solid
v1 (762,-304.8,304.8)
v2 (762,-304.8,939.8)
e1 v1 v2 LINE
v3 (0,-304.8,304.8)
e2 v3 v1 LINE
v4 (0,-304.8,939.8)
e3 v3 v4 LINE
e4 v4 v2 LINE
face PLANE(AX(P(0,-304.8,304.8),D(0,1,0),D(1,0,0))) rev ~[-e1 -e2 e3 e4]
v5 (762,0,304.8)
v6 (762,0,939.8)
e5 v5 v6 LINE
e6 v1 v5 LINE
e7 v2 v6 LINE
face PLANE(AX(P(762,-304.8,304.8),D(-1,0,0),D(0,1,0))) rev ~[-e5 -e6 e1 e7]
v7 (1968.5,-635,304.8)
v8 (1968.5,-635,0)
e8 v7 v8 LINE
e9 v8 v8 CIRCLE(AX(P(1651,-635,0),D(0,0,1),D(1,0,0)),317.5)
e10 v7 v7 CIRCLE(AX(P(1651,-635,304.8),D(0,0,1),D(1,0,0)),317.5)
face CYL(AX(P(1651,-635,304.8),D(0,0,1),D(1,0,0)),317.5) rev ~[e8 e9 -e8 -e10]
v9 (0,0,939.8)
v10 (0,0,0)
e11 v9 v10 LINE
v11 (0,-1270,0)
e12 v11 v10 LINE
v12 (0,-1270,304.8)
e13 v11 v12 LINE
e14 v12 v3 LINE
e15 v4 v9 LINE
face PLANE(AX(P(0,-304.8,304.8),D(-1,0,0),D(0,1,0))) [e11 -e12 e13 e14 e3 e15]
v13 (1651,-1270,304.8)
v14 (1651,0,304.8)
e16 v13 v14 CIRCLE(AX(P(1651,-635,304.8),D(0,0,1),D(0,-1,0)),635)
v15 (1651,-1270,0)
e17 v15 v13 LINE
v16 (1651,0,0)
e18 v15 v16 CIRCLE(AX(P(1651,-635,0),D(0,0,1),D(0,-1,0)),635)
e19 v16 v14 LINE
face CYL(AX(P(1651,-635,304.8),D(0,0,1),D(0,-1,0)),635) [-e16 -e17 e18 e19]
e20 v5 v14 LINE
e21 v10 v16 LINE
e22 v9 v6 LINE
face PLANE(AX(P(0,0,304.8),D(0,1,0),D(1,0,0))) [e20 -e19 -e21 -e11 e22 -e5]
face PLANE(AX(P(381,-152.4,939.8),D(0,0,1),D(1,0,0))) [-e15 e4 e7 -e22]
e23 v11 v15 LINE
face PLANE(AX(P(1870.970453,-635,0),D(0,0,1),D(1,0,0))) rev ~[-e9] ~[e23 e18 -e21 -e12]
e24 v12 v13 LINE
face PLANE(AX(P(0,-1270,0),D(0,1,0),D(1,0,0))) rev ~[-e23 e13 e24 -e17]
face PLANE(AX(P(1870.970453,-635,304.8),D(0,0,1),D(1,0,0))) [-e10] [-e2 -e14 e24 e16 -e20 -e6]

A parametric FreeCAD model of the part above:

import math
import FreeCAD as App
import Part
import Sketcher

V = App.Vector
Q = App.Units.Quantity

doc = App.newDocument("Part")
body = doc.addObject("PartDesign::Body", "Body")

# Sketch on XY plane
sketch1 = body.newObject("Sketcher::SketchObject", "Sketch")
sketch1.AttachmentSupport = (doc.getObject("XY_Plane"), [""])
sketch1.MapMode = "FlatFace"
sketch1.addGeometry([
    Part.LineSegment(V(0, 0, 0), V(0, -1270, 0)),
    Part.LineSegment(V(0, -1270, 0), V(1651, -1270, 0)),
    Part.LineSegment(V(1651, -1270, 0), V(1651, 0, 0)),
    Part.LineSegment(V(1651, 0, 0), V(0, 0, 0)),
], False)
sketch1.addConstraint([
    Sketcher.Constraint("Coincident", 0, 2, 1, 1),
    Sketcher.Constraint("Coincident", 1, 2, 2, 1),
    Sketcher.Constraint("Coincident", 2, 2, 3, 1),
    Sketcher.Constraint("Coincident", 3, 2, 0, 1),
    Sketcher.Constraint("Vertical", 0),
    Sketcher.Constraint("Horizontal", 1),
    Sketcher.Constraint("Vertical", 2),
    Sketcher.Constraint("Horizontal", 3),
    Sketcher.Constraint("Coincident", 3, 2, -1, 1),
    Sketcher.Constraint("DistanceX", 1, 1, 1, 2, Q("65 in")),
    Sketcher.Constraint("DistanceY", 0, 2, 0, 1, Q("50 in")),
])
pad1 = body.newObject("PartDesign::Pad", "Pad")
pad1.Profile = sketch1
pad1.Length = Q("12 in")

# Sketch on XY plane
sketch2 = body.newObject("Sketcher::SketchObject", "Sketch001")
sketch2.AttachmentSupport = (doc.getObject("XY_Plane"), [""])
sketch2.MapMode = "FlatFace"
sketch2.AttachmentOffset = App.Placement(V(0, 0, 12 * 25.4), App.Rotation())
sketch2.addGeometry([
    Part.LineSegment(V(0, 0, 0), V(0, -305, 0)),
    Part.LineSegment(V(0, -305, 0), V(762, -305, 0)),
    Part.LineSegment(V(762, -305, 0), V(762, 0, 0)),
    Part.LineSegment(V(762, 0, 0), V(0, 0, 0)),
], False)
sketch2.addConstraint([
    Sketcher.Constraint("Coincident", 0, 2, 1, 1),
    Sketcher.Constraint("Coincident", 1, 2, 2, 1),
    Sketcher.Constraint("Coincident", 2, 2, 3, 1),
    Sketcher.Constraint("Coincident", 3, 2, 0, 1),
    Sketcher.Constraint("Vertical", 0),
    Sketcher.Constraint("Horizontal", 1),
    Sketcher.Constraint("Vertical", 2),
    Sketcher.Constraint("Horizontal", 3),
    Sketcher.Constraint("Coincident", 3, 2, -1, 1),
    Sketcher.Constraint("DistanceX", 1, 1, 1, 2, Q("30 in")),
    Sketcher.Constraint("DistanceY", 0, 2, 0, 1, Q("12 in")),
])
pad2 = body.newObject("PartDesign::Pad", "Pad001")
pad2.Profile = sketch2
pad2.Length = Q("25 in")

# Sketch on XY plane
sketch3 = body.newObject("Sketcher::SketchObject", "Sketch002")
sketch3.AttachmentSupport = (doc.getObject("XY_Plane"), [""])
sketch3.MapMode = "FlatFace"
sketch3.AttachmentOffset = App.Placement(V(0, 0, 12 * 25.4), App.Rotation())
sketch3.addGeometry([
    Part.ArcOfCircle(Part.Circle(V(1651, -635, 0), V(0, 0, 1), 635), math.radians(-90), math.radians(90)),
    Part.LineSegment(V(1651, 0, 0), V(1651, -1270, 0)),
], False)
sketch3.addConstraint([
    Sketcher.Constraint("Coincident", 0, 1, 1, 2),
    Sketcher.Constraint("Coincident", 1, 1, 0, 2),
    Sketcher.Constraint("Vertical", 1),
    Sketcher.Constraint("PointOnObject", 1, 1, -1),
    Sketcher.Constraint("Radius", 0, Q("25 in")),
    Sketcher.Constraint("DistanceX", -1, 1, 0, 3, Q("65 in")),
    Sketcher.Constraint("DistanceX", -1, 1, 1, 1, Q("65 in")),
])
pad3 = body.newObject("PartDesign::Pad", "Pad002")
pad3.Profile = sketch3
pad3.Length = Q("12 in")
pad3.Reversed = True

# Sketch on XY plane
sketch4 = body.newObject("Sketcher::SketchObject", "Sketch003")
sketch4.AttachmentSupport = (doc.getObject("XY_Plane"), [""])
sketch4.MapMode = "FlatFace"
sketch4.AttachmentOffset = App.Placement(V(0, 0, 12 * 25.4), App.Rotation())
sketch4.addGeometry(Part.Circle(V(1651, -635, 0), V(0, 0, 1), 318), False)
sketch4.addConstraint([
    Sketcher.Constraint("Diameter", 0, Q("25 in")),
    Sketcher.Constraint("DistanceX", -1, 1, 0, 3, Q("65 in")),
    Sketcher.Constraint("DistanceY", 0, 3, -1, 1, Q("25 in")),
])
pocket1 = body.newObject("PartDesign::Pocket", "Pocket")
pocket1.Profile = sketch4
pocket1.Length = Q("37.3 in")

doc.recompute()
